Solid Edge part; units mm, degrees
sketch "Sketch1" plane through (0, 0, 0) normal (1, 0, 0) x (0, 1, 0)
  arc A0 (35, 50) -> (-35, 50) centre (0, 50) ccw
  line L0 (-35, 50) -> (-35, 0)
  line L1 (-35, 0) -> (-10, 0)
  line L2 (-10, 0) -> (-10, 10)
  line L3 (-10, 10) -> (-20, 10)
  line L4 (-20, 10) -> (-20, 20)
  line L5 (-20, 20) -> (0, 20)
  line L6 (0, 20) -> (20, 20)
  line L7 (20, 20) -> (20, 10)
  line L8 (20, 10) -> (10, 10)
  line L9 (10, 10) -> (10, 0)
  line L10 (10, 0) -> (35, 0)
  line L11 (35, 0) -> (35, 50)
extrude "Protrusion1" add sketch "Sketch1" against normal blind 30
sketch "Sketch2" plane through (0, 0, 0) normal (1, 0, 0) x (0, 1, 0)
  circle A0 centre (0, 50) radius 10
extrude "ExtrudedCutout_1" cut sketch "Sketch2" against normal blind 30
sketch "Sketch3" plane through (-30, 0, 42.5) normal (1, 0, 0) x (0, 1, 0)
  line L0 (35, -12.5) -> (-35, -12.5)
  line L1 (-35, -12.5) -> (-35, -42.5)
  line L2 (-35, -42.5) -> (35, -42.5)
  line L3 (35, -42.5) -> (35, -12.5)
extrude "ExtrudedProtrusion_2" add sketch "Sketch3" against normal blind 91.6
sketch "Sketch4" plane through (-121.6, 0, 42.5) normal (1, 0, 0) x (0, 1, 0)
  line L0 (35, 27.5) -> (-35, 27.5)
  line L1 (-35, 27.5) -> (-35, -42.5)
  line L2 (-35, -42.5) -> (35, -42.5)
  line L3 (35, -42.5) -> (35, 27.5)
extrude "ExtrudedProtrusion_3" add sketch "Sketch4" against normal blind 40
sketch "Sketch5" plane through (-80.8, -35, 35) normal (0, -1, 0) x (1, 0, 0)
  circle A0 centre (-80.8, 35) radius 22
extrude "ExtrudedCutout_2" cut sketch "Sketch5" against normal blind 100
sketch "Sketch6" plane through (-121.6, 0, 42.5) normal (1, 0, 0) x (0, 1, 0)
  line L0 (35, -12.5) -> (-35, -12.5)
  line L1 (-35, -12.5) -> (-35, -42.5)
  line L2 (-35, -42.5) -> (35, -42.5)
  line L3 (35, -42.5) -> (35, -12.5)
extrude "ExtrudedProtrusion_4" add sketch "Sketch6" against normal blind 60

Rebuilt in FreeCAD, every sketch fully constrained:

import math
import FreeCAD as App
import Part
import Sketcher

V = App.Vector

doc = App.newDocument("Part")
body = doc.addObject("PartDesign::Body", "Body")

sketch1 = body.newObject("Sketcher::SketchObject", "Sketch")
sketch1.AttachmentSupport = (doc.getObject("YZ_Plane"), [""])
sketch1.MapMode = "FlatFace"
sketch1.addGeometry([
    Part.LineSegment(V(35, 0, 0), V(35, 50, 0)),
    Part.ArcOfCircle(Part.Circle(V(0, 50, 0), V(0, 0, 1), 35), math.radians(0), math.radians(180)),
    Part.LineSegment(V(-35, 50, 0), V(-35, 0, 0)),
    Part.LineSegment(V(-35, 0, 0), V(-10, 0, 0)),
    Part.LineSegment(V(-10, 0, 0), V(-10, 10, 0)),
    Part.LineSegment(V(-10, 10, 0), V(-20, 10, 0)),
    Part.LineSegment(V(-20, 10, 0), V(-20, 20, 0)),
    Part.LineSegment(V(-20, 20, 0), V(20, 20, 0)),
    Part.LineSegment(V(20, 20, 0), V(20, 10, 0)),
    Part.LineSegment(V(20, 10, 0), V(10, 10, 0)),
    Part.LineSegment(V(10, 10, 0), V(10, 0, 0)),
    Part.LineSegment(V(10, 0, 0), V(35, 0, 0)),
], False)
sketch1.addConstraint([
    Sketcher.Constraint("Tangent", 0, 2, 1, 1),
    Sketcher.Constraint("Tangent", 1, 2, 2, 1),
    Sketcher.Constraint("Coincident", 2, 2, 3, 1),
    Sketcher.Constraint("Coincident", 3, 2, 4, 1),
    Sketcher.Constraint("Coincident", 4, 2, 5, 1),
    Sketcher.Constraint("Coincident", 5, 2, 6, 1),
    Sketcher.Constraint("Coincident", 6, 2, 7, 1),
    Sketcher.Constraint("Coincident", 7, 2, 8, 1),
    Sketcher.Constraint("Coincident", 8, 2, 9, 1),
    Sketcher.Constraint("Coincident", 9, 2, 10, 1),
    Sketcher.Constraint("Coincident", 10, 2, 11, 1),
    Sketcher.Constraint("Coincident", 11, 2, 0, 1),
    Sketcher.Constraint("Vertical", 0),
    Sketcher.Constraint("Vertical", 2),
    Sketcher.Constraint("Horizontal", 3),
    Sketcher.Constraint("Vertical", 4),
    Sketcher.Constraint("Horizontal", 5),
    Sketcher.Constraint("Vertical", 6),
    Sketcher.Constraint("Horizontal", 7),
    Sketcher.Constraint("Vertical", 8),
    Sketcher.Constraint("Horizontal", 9),
    Sketcher.Constraint("Vertical", 10),
    Sketcher.Constraint("Horizontal", 11),
    Sketcher.Constraint("Symmetric", 3, 2, 10, 2, -1, 1),
    Sketcher.Constraint("Symmetric", 5, 2, 8, 2, -2),
    Sketcher.Constraint("Symmetric", 2, 2, 11, 2, -2),
    Sketcher.Constraint("Equal", 9, 4),
    Sketcher.Constraint("Equal", 4, 6),
    Sketcher.Constraint("Radius", 1, 35.0),
    Sketcher.Constraint("DistanceX", 3, 1, 3, 2, 25.0),
    Sketcher.Constraint("DistanceX", 5, 2, 5, 1, 10.0),
    Sketcher.Constraint("DistanceY", 0, 1, 0, 2, 50.0),
])
pad1 = body.newObject("PartDesign::Pad", "Pad")
pad1.Profile = sketch1
pad1.Length = 30
pad1.Reversed = True

sketch2 = body.newObject("Sketcher::SketchObject", "Sketch001")
sketch2.AttachmentSupport = (doc.getObject("YZ_Plane"), [""])
sketch2.MapMode = "FlatFace"
sketch2.addGeometry(Part.Circle(V(0, 50, 0), V(0, 0, 1), 10), False)
sketch2.addConstraint([
    Sketcher.Constraint("PointOnObject", 0, 3, -2),
    Sketcher.Constraint("Diameter", 0, 20.0),
    Sketcher.Constraint("DistanceY", -1, 1, 0, 3, 50.0),
])
pocket1 = body.newObject("PartDesign::Pocket", "Pocket")
pocket1.Profile = sketch2
pocket1.Length = 30

sketch3 = body.newObject("Sketcher::SketchObject", "Sketch002")
sketch3.AttachmentSupport = (doc.getObject("YZ_Plane"), [""])
sketch3.MapMode = "FlatFace"
sketch3.AttachmentOffset = App.Placement(V(0, 0, -30), App.Rotation())
sketch3.addGeometry([
    Part.LineSegment(V(35, 0, 0), V(35, 30, 0)),
    Part.LineSegment(V(35, 30, 0), V(-35, 30, 0)),
    Part.LineSegment(V(-35, 30, 0), V(-35, 0, 0)),
    Part.LineSegment(V(-35, 0, 0), V(35, 0, 0)),
], False)
sketch3.addConstraint([
    Sketcher.Constraint("Coincident", 0, 2, 1, 1),
    Sketcher.Constraint("Coincident", 1, 2, 2, 1),
    Sketcher.Constraint("Coincident", 2, 2, 3, 1),
    Sketcher.Constraint("Coincident", 3, 2, 0, 1),
    Sketcher.Constraint("Vertical", 0),
    Sketcher.Constraint("Horizontal", 1),
    Sketcher.Constraint("Vertical", 2),
    Sketcher.Constraint("Horizontal", 3),
    Sketcher.Constraint("Symmetric", 2, 2, 3, 2, -1, 1),
    Sketcher.Constraint("DistanceX", 1, 2, 1, 1, 70.0),
    Sketcher.Constraint("DistanceY", 0, 1, 0, 2, 30.0),
])
pad2 = body.newObject("PartDesign::Pad", "Pad001")
pad2.Profile = sketch3
pad2.Length = 91.6
pad2.Reversed = True

sketch4 = body.newObject("Sketcher::SketchObject", "Sketch003")
sketch4.AttachmentSupport = (doc.getObject("YZ_Plane"), [""])
sketch4.MapMode = "FlatFace"
sketch4.AttachmentOffset = App.Placement(V(0, 0, -121.6), App.Rotation())
sketch4.addGeometry([
    Part.LineSegment(V(35, 0, 0), V(35, 70, 0)),
    Part.LineSegment(V(35, 70, 0), V(-35, 70, 0)),
    Part.LineSegment(V(-35, 70, 0), V(-35, 0, 0)),
    Part.LineSegment(V(-35, 0, 0), V(35, 0, 0)),
], False)
sketch4.addConstraint([
    Sketcher.Constraint("Coincident", 0, 2, 1, 1),
    Sketcher.Constraint("Coincident", 1, 2, 2, 1),
    Sketcher.Constraint("Coincident", 2, 2, 3, 1),
    Sketcher.Constraint("Coincident", 3, 2, 0, 1),
    Sketcher.Constraint("Vertical", 0),
    Sketcher.Constraint("Horizontal", 1),
    Sketcher.Constraint("Vertical", 2),
    Sketcher.Constraint("Horizontal", 3),
    Sketcher.Constraint("Symmetric", 2, 2, 3, 2, -1, 1),
    Sketcher.Constraint("Equal", 3, 0),
    Sketcher.Constraint("DistanceX", 1, 2, 1, 1, 70.0),
])
pad3 = body.newObject("PartDesign::Pad", "Pad002")
pad3.Profile = sketch4
pad3.Length = 40
pad3.Reversed = True

sketch5 = body.newObject("Sketcher::SketchObject", "Sketch004")
sketch5.AttachmentSupport = (doc.getObject("XZ_Plane"), [""])
sketch5.MapMode = "FlatFace"
sketch5.AttachmentOffset = App.Placement(V(0, 0, 35), App.Rotation())
sketch5.addGeometry(Part.Circle(V(-161.6, 70, 0), V(0, 0, 1), 22), False)
sketch5.addConstraint([
    Sketcher.Constraint("Diameter", 0, 44.0),
    Sketcher.Constraint("DistanceY", -1, 1, 0, 3, 70.0),
    Sketcher.Constraint("DistanceX", 0, 3, -1, 1, 161.6),
])
pocket2 = body.newObject("PartDesign::Pocket", "Pocket001")
pocket2.Profile = sketch5
pocket2.Length = 100

sketch6 = body.newObject("Sketcher::SketchObject", "Sketch005")
sketch6.AttachmentSupport = (doc.getObject("YZ_Plane"), [""])
sketch6.MapMode = "FlatFace"
sketch6.AttachmentOffset = App.Placement(V(0, 0, -121.6), App.Rotation())
sketch6.addGeometry([
    Part.LineSegment(V(35, 0, 0), V(35, 30, 0)),
    Part.LineSegment(V(35, 30, 0), V(-35, 30, 0)),
    Part.LineSegment(V(-35, 30, 0), V(-35, 0, 0)),
    Part.LineSegment(V(-35, 0, 0), V(35, 0, 0)),
], False)
sketch6.addConstraint([
    Sketcher.Constraint("Coincident", 0, 2, 1, 1),
    Sketcher.Constraint("Coincident", 1, 2, 2, 1),
    Sketcher.Constraint("Coincident", 2, 2, 3, 1),
    Sketcher.Constraint("Coincident", 3, 2, 0, 1),
    Sketcher.Constraint("Vertical", 0),
    Sketcher.Constraint("Horizontal", 1),
    Sketcher.Constraint("Vertical", 2),
    Sketcher.Constraint("Horizontal", 3),
    Sketcher.Constraint("Symmetric", 2, 2, 3, 2, -1, 1),
    Sketcher.Constraint("DistanceX", 1, 2, 1, 1, 70.0),
    Sketcher.Constraint("DistanceY", 0, 1, 0, 2, 30.0),
])
pad4 = body.newObject("PartDesign::Pad", "Pad003")
pad4.Profile = sketch6
pad4.Length = 60
pad4.Reversed = True

doc.recompute()
